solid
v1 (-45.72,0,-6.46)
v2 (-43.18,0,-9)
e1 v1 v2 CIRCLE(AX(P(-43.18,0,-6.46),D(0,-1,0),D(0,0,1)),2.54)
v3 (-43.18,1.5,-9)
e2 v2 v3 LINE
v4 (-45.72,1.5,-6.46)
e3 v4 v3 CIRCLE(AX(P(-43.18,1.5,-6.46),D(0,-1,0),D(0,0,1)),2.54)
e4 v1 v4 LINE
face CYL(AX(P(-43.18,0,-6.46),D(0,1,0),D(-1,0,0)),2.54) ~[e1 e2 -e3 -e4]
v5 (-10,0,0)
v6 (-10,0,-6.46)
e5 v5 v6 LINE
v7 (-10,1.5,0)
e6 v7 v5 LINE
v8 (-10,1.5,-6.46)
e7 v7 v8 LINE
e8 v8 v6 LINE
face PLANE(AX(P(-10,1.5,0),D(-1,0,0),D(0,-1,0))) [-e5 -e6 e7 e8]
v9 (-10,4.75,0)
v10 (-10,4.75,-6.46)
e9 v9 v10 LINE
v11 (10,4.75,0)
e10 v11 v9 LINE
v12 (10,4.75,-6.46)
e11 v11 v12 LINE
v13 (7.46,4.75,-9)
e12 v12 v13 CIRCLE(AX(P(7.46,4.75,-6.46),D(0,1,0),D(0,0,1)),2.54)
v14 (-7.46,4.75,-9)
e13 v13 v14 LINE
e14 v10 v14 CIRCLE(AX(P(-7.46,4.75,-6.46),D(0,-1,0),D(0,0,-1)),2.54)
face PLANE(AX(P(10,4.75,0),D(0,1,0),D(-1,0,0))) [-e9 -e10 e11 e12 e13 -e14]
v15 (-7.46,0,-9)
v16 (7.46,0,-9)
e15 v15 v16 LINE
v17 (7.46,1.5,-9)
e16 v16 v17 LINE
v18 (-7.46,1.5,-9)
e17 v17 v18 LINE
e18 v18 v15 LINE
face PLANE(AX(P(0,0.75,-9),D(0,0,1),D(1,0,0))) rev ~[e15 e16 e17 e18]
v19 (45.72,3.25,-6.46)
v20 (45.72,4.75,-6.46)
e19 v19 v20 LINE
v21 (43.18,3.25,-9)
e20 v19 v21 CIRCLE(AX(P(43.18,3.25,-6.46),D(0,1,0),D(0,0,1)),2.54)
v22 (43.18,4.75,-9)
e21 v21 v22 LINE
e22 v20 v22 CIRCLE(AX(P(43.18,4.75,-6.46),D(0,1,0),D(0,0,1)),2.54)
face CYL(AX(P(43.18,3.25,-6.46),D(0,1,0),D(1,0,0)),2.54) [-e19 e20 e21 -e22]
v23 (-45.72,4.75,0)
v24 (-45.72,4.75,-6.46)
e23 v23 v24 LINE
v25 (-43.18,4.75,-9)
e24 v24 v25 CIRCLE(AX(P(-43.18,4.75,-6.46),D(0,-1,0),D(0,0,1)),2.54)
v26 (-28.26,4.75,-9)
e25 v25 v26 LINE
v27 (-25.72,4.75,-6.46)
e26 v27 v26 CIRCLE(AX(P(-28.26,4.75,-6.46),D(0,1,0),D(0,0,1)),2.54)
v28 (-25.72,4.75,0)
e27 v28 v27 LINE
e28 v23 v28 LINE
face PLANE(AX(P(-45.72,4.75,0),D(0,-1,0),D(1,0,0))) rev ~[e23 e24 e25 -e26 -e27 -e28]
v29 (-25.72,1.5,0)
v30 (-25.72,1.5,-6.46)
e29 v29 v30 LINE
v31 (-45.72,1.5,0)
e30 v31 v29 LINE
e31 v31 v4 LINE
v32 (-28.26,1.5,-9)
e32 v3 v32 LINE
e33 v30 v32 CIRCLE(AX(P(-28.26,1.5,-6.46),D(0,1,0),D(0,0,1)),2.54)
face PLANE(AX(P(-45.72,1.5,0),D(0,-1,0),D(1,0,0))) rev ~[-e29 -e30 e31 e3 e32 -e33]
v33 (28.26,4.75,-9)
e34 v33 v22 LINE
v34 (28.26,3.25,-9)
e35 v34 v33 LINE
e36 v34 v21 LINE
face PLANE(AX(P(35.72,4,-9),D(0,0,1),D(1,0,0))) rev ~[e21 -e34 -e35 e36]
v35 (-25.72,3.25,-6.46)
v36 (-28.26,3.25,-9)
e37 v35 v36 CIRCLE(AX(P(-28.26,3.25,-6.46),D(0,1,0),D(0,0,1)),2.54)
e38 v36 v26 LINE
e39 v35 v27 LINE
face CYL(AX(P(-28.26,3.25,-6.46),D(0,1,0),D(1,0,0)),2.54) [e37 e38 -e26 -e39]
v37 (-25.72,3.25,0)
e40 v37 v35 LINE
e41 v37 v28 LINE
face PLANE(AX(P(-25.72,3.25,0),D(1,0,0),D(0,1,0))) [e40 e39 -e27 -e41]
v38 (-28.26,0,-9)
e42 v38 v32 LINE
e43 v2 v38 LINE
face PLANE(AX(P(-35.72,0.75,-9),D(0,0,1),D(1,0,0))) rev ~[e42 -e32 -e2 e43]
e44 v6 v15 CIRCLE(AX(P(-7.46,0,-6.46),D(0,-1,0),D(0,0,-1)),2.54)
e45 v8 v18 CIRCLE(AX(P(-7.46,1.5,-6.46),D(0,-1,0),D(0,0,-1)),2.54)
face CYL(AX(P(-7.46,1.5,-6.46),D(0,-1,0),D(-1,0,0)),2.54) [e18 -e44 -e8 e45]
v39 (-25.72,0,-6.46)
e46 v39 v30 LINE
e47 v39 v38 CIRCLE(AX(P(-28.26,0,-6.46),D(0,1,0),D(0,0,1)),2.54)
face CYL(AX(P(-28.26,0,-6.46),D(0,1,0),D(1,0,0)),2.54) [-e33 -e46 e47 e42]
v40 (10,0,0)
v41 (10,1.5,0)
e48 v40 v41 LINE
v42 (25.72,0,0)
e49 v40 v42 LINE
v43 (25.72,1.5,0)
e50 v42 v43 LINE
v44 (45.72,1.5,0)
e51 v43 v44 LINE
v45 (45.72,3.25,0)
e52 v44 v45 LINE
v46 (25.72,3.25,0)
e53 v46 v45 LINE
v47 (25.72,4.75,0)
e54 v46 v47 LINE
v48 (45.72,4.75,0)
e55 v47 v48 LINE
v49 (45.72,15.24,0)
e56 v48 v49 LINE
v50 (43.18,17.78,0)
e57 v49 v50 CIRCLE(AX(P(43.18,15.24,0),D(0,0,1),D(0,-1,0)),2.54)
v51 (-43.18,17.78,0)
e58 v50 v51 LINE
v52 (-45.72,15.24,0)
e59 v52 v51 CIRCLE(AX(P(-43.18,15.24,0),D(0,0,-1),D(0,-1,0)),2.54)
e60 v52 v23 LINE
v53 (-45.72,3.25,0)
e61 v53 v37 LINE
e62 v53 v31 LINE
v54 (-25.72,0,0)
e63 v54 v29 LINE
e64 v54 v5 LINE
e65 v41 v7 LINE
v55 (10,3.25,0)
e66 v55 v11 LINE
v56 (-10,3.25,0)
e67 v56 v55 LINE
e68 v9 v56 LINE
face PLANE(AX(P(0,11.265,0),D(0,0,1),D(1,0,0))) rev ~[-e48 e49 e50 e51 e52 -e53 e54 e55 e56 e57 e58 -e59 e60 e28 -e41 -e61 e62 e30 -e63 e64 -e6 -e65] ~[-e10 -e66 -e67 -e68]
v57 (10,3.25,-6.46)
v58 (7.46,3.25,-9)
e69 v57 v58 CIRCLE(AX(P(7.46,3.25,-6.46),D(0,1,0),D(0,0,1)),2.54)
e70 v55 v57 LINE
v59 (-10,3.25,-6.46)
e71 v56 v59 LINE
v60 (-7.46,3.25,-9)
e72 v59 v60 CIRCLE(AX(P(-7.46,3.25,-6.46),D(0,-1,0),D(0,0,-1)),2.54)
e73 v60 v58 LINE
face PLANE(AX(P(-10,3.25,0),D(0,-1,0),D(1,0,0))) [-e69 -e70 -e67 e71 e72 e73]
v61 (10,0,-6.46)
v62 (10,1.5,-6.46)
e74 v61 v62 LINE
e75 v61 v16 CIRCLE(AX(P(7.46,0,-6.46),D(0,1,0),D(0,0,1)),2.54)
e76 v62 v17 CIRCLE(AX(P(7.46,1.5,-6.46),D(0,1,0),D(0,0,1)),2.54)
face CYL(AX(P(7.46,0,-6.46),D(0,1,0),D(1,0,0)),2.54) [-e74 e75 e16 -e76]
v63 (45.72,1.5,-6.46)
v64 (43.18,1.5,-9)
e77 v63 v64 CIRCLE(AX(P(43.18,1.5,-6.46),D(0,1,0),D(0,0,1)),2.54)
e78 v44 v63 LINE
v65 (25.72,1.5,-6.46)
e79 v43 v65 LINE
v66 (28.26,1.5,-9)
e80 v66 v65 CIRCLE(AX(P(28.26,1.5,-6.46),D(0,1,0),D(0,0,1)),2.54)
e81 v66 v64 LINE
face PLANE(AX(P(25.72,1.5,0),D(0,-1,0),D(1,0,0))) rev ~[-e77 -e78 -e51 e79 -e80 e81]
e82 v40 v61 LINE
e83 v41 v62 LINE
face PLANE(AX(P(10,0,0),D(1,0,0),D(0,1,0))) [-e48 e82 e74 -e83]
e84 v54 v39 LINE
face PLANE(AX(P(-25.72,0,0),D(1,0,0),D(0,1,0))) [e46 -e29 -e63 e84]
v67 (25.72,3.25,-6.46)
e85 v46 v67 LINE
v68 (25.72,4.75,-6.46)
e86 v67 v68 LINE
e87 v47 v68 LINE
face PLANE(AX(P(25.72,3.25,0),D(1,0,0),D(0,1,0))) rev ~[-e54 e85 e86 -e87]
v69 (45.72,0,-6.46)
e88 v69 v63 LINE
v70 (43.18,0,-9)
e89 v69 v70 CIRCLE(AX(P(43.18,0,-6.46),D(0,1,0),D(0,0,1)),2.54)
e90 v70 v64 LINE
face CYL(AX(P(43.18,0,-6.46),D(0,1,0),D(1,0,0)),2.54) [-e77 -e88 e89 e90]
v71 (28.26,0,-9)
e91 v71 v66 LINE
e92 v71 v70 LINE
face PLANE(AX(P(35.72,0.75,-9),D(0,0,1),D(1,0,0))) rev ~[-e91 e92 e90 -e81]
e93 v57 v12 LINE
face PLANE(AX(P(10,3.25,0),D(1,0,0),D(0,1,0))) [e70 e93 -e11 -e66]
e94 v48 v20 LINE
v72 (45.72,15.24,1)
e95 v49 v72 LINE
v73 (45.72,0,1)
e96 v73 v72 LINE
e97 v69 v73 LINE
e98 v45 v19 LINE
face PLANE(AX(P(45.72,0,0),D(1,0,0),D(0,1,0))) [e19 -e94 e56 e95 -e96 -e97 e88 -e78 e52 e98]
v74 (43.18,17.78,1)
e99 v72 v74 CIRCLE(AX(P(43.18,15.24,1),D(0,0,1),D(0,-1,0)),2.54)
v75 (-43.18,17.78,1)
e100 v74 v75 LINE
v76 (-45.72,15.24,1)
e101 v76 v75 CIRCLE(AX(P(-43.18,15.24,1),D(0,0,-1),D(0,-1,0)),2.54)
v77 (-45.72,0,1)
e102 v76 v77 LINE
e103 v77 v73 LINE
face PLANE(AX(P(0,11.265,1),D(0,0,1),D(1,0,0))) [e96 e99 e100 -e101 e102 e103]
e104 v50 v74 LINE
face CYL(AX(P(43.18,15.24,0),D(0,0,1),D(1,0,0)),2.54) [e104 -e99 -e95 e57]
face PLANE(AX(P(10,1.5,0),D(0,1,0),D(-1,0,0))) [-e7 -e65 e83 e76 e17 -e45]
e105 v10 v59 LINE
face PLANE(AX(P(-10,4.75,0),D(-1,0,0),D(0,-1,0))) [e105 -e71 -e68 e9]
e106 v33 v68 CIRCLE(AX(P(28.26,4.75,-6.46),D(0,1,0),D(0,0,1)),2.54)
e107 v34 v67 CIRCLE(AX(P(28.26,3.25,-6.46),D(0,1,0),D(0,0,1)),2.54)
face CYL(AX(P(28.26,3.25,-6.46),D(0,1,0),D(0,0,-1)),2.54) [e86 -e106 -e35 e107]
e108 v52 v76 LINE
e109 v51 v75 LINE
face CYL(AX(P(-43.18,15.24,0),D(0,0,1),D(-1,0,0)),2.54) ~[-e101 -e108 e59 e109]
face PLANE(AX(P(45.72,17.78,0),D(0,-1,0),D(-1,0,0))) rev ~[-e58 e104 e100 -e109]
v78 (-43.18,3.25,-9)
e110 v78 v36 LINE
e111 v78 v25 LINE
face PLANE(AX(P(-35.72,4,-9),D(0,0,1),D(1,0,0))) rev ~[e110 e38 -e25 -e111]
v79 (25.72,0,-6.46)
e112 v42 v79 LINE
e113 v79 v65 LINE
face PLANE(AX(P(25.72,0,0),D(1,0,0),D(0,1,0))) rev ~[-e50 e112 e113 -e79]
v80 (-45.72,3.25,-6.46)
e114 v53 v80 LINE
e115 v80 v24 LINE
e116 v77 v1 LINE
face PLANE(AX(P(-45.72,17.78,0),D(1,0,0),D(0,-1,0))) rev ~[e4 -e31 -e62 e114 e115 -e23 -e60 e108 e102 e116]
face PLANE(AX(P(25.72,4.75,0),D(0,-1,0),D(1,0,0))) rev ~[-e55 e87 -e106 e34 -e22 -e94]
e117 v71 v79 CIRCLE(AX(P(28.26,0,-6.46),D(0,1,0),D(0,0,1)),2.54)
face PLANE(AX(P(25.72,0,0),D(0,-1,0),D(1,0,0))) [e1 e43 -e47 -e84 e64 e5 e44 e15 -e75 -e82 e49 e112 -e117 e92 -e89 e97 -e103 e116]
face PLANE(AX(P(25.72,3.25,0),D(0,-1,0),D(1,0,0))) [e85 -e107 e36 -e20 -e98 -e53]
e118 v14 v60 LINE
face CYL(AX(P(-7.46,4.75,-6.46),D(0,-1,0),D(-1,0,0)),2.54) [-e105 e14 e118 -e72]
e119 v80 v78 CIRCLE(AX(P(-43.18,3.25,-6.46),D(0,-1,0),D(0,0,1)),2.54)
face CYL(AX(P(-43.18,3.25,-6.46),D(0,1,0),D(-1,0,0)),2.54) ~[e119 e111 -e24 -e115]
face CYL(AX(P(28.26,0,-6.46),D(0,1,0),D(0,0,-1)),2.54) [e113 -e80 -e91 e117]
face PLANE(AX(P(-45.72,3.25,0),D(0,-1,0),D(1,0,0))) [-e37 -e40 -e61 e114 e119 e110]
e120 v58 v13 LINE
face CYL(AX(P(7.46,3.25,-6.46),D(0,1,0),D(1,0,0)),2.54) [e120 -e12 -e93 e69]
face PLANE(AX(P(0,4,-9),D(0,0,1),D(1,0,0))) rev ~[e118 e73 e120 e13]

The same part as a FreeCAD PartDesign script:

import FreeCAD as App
import Part
import Sketcher
Q = App.Units.Quantity


def edges_at(feature, points):
    """Names of the edges that pass closest to the given points."""
    edges = feature.Shape.Edges
    near = lambda p: min(range(len(edges)), key=lambda i: edges[i].distToShape(Part.Vertex(*p))[0])
    return sorted({f"Edge{near(p) + 1}" for p in points})

doc = App.newDocument("Part")
body = doc.addObject("PartDesign::Body", "Body")

# Sketch on XY plane
sketch1 = doc.addObject("Sketcher::SketchObject", "Sketch")
body.addObject(sketch1)
sketch1.AttachmentSupport = (doc.XY_Plane, [""])
sketch1.MapMode = "FlatFace"
sketch1.addGeometry([
    Part.LineSegment(App.Vector(46, 0, 0), App.Vector(46, 18, 0)),
    Part.LineSegment(App.Vector(46, 18, 0), App.Vector(-46, 18, 0)),
    Part.LineSegment(App.Vector(-46, 18, 0), App.Vector(-46, 0, 0)),
    Part.LineSegment(App.Vector(-46, 0, 0), App.Vector(46, 0, 0)),
], False)
sketch1.addConstraint([
    Sketcher.Constraint("Coincident", 0, 2, 1, 1),
    Sketcher.Constraint("Coincident", 1, 2, 2, 1),
    Sketcher.Constraint("Coincident", 2, 2, 3, 1),
    Sketcher.Constraint("Coincident", 3, 2, 0, 1),
    Sketcher.Constraint("Vertical", 0),
    Sketcher.Constraint("Horizontal", 1),
    Sketcher.Constraint("Vertical", 2),
    Sketcher.Constraint("Horizontal", 3),
    Sketcher.Constraint("Symmetric", 2, 2, 3, 2, -1, 1),
    Sketcher.Constraint("DistanceX", 1, 2, 1, 1, Q("91.44 mm")),
    Sketcher.Constraint("DistanceY", 0, 1, 0, 2, Q("17.78 mm")),
])
pad1 = doc.addObject("PartDesign::Pad", "Pad")
body.addObject(pad1)
pad1.Profile = sketch1
pad1.Length = 1

# Sketch on XY plane
sketch2 = doc.addObject("Sketcher::SketchObject", "Sketch001")
body.addObject(sketch2)
sketch2.AttachmentSupport = (doc.XY_Plane, [""])
sketch2.MapMode = "FlatFace"
sketch2.addGeometry([
    Part.LineSegment(App.Vector(25.7, 1.5, 0), App.Vector(25.7, 0, 0)),  # 0
    Part.LineSegment(App.Vector(25.7, 0, 0), App.Vector(45.7, 0, 0)),  # 1
    Part.LineSegment(App.Vector(45.7, 0, 0), App.Vector(45.7, 1.5, 0)),  # 2
    Part.LineSegment(App.Vector(45.7, 1.5, 0), App.Vector(25.7, 1.5, 0)),  # 3
    Part.LineSegment(App.Vector(25.7, 4.8, 0), App.Vector(25.7, 3.2, 0)),  # 4
    Part.LineSegment(App.Vector(25.7, 3.2, 0), App.Vector(45.7, 3.2, 0)),  # 5
    Part.LineSegment(App.Vector(45.7, 3.2, 0), App.Vector(45.7, 4.8, 0)),  # 6
    Part.LineSegment(App.Vector(45.7, 4.8, 0), App.Vector(25.7, 4.8, 0)),  # 7
    Part.LineSegment(App.Vector(-45.7, 4.8, 0), App.Vector(-45.7, 3.2, 0)),  # 8
    Part.LineSegment(App.Vector(-45.7, 3.2, 0), App.Vector(-25.7, 3.2, 0)),  # 9
    Part.LineSegment(App.Vector(-25.7, 3.2, 0), App.Vector(-25.7, 4.8, 0)),  # 10
    Part.LineSegment(App.Vector(-25.7, 4.8, 0), App.Vector(-45.7, 4.8, 0)),  # 11
    Part.LineSegment(App.Vector(-45.7, 1.5, 0), App.Vector(-45.7, 0, 0)),  # 12
    Part.LineSegment(App.Vector(-45.7, 0, 0), App.Vector(-25.7, 0, 0)),  # 13
    Part.LineSegment(App.Vector(-25.7, 0, 0), App.Vector(-25.7, 1.5, 0)),  # 14
    Part.LineSegment(App.Vector(-25.7, 1.5, 0), App.Vector(-45.7, 1.5, 0)),  # 15
    Part.LineSegment(App.Vector(10, 3.2, 0), App.Vector(10, 4.8, 0)),  # 16
    Part.LineSegment(App.Vector(10, 4.8, 0), App.Vector(-10, 4.8, 0)),  # 17
    Part.LineSegment(App.Vector(-10, 4.8, 0), App.Vector(-10, 3.2, 0)),  # 18
    Part.LineSegment(App.Vector(-10, 3.2, 0), App.Vector(10, 3.2, 0)),  # 19
    Part.LineSegment(App.Vector(-10, 0, 0), App.Vector(10, 0, 0)),  # 20
    Part.LineSegment(App.Vector(10, 0, 0), App.Vector(10, 1.5, 0)),  # 21
    Part.LineSegment(App.Vector(10, 1.5, 0), App.Vector(-10, 1.5, 0)),  # 22
    Part.LineSegment(App.Vector(-10, 1.5, 0), App.Vector(-10, 0, 0)),  # 23
], False)
sketch2.addConstraint([
    Sketcher.Constraint("Coincident", 0, 2, 1, 1),
    Sketcher.Constraint("Coincident", 1, 2, 2, 1),
    Sketcher.Constraint("Coincident", 2, 2, 3, 1),
    Sketcher.Constraint("Coincident", 3, 2, 0, 1),
    Sketcher.Constraint("Coincident", 4, 2, 5, 1),
    Sketcher.Constraint("Coincident", 5, 2, 6, 1),
    Sketcher.Constraint("Coincident", 6, 2, 7, 1),
    Sketcher.Constraint("Coincident", 7, 2, 4, 1),
    Sketcher.Constraint("Coincident", 8, 2, 9, 1),
    Sketcher.Constraint("Coincident", 9, 2, 10, 1),
    Sketcher.Constraint("Coincident", 10, 2, 11, 1),
    Sketcher.Constraint("Coincident", 11, 2, 8, 1),
    Sketcher.Constraint("Coincident", 12, 2, 13, 1),
    Sketcher.Constraint("Coincident", 13, 2, 14, 1),
    Sketcher.Constraint("Coincident", 14, 2, 15, 1),
    Sketcher.Constraint("Coincident", 15, 2, 12, 1),
    Sketcher.Constraint("Coincident", 16, 2, 17, 1),
    Sketcher.Constraint("Coincident", 17, 2, 18, 1),
    Sketcher.Constraint("Coincident", 18, 2, 19, 1),
    Sketcher.Constraint("Coincident", 19, 2, 16, 1),
    Sketcher.Constraint("Coincident", 20, 2, 21, 1),
    Sketcher.Constraint("Coincident", 21, 2, 22, 1),
    Sketcher.Constraint("Coincident", 22, 2, 23, 1),
    Sketcher.Constraint("Coincident", 23, 2, 20, 1),
    Sketcher.Constraint("Vertical", 0),
    Sketcher.Constraint("Horizontal", 1),
    Sketcher.Constraint("Vertical", 2),
    Sketcher.Constraint("Horizontal", 3),
    Sketcher.Constraint("Vertical", 4),
    Sketcher.Constraint("Horizontal", 5),
    Sketcher.Constraint("Vertical", 6),
    Sketcher.Constraint("Horizontal", 7),
    Sketcher.Constraint("Vertical", 8),
    Sketcher.Constraint("Horizontal", 9),
    Sketcher.Constraint("Vertical", 10),
    Sketcher.Constraint("Horizontal", 11),
    Sketcher.Constraint("Vertical", 12),
    Sketcher.Constraint("Horizontal", 13),
    Sketcher.Constraint("Vertical", 14),
    Sketcher.Constraint("Horizontal", 15),
    Sketcher.Constraint("Vertical", 16),
    Sketcher.Constraint("Horizontal", 17),
    Sketcher.Constraint("Vertical", 18),
    Sketcher.Constraint("Horizontal", 19),
    Sketcher.Constraint("Horizontal", 20),
    Sketcher.Constraint("Vertical", 21),
    Sketcher.Constraint("Horizontal", 22),
    Sketcher.Constraint("Vertical", 23),
    Sketcher.Constraint("Symmetric", 1, 2, 12, 2, -1, 1),
    Sketcher.Constraint("Symmetric", 20, 2, 23, 2, -1, 1),
    Sketcher.Constraint("Symmetric", 5, 2, 8, 2, -2),
    Sketcher.Constraint("Symmetric", 7, 2, 10, 2, -2),
    Sketcher.Constraint("Symmetric", 0, 2, 13, 2, -2),
    Sketcher.Constraint("Horizontal", 3, 2, 14, 2),
    Sketcher.Constraint("Horizontal", 11, 2, 16, 2),
    Sketcher.Constraint("Horizontal", 9, 2, 18, 2),
    Sketcher.Constraint("Horizontal", 15, 2, 21, 2),
    Sketcher.Constraint("Vertical", 3, 2, 4, 2),
    Sketcher.Constraint("Vertical", 2, 2, 5, 2),
    Sketcher.Constraint("Vertical", 19, 2, 20, 2),
    Sketcher.Constraint("Vertical", 18, 2, 22, 2),
    Sketcher.Constraint("Equal", 15, 17),
    Sketcher.Constraint("Equal", 2, 4),
    Sketcher.Constraint("DistanceX", 1, 1, 1, 2, Q("20 mm")),
    Sketcher.Constraint("DistanceY", 0, 2, 0, 1, Q("1.5 mm")),
    Sketcher.Constraint("DistanceX", -1, 1, 0, 2, Q("25.72 mm")),
    Sketcher.Constraint("DistanceY", -1, 1, 4, 2, Q("3.25 mm")),
])
pad2 = doc.addObject("PartDesign::Pad", "Pad001")
body.addObject(pad2)
pad2.Profile = sketch2
pad2.Length = 9
pad2.Reversed = True
doc.recompute()

fillet = doc.addObject("PartDesign::Fillet", "Fillet")
body.addObject(fillet)
fillet.Base = (pad2, edges_at(pad2, [(45.72, 17.78, 0.5), (-45.72, 17.78, 0.5)]))
fillet.Radius = 2.54
doc.recompute()

fillet2 = doc.addObject("PartDesign::Fillet", "Fillet001")
body.addObject(fillet2)
fillet2.Base = (fillet, edges_at(fillet, [
    (-45.72, 0.75, -9),
    (-45.72, 4, -9),
    (45.72, 0.75, -9),
    (45.72, 4, -9),
    (-25.72, 0.75, -9),
    (-25.72, 4, -9),
    (-10, 4, -9),
    (-10, 0.75, -9),
    (10, 0.75, -9),
    (10, 4, -9),
    (25.72, 4, -9),
    (25.72, 0.75, -9),
]))
fillet2.Radius = 2.54

doc.recompute()
